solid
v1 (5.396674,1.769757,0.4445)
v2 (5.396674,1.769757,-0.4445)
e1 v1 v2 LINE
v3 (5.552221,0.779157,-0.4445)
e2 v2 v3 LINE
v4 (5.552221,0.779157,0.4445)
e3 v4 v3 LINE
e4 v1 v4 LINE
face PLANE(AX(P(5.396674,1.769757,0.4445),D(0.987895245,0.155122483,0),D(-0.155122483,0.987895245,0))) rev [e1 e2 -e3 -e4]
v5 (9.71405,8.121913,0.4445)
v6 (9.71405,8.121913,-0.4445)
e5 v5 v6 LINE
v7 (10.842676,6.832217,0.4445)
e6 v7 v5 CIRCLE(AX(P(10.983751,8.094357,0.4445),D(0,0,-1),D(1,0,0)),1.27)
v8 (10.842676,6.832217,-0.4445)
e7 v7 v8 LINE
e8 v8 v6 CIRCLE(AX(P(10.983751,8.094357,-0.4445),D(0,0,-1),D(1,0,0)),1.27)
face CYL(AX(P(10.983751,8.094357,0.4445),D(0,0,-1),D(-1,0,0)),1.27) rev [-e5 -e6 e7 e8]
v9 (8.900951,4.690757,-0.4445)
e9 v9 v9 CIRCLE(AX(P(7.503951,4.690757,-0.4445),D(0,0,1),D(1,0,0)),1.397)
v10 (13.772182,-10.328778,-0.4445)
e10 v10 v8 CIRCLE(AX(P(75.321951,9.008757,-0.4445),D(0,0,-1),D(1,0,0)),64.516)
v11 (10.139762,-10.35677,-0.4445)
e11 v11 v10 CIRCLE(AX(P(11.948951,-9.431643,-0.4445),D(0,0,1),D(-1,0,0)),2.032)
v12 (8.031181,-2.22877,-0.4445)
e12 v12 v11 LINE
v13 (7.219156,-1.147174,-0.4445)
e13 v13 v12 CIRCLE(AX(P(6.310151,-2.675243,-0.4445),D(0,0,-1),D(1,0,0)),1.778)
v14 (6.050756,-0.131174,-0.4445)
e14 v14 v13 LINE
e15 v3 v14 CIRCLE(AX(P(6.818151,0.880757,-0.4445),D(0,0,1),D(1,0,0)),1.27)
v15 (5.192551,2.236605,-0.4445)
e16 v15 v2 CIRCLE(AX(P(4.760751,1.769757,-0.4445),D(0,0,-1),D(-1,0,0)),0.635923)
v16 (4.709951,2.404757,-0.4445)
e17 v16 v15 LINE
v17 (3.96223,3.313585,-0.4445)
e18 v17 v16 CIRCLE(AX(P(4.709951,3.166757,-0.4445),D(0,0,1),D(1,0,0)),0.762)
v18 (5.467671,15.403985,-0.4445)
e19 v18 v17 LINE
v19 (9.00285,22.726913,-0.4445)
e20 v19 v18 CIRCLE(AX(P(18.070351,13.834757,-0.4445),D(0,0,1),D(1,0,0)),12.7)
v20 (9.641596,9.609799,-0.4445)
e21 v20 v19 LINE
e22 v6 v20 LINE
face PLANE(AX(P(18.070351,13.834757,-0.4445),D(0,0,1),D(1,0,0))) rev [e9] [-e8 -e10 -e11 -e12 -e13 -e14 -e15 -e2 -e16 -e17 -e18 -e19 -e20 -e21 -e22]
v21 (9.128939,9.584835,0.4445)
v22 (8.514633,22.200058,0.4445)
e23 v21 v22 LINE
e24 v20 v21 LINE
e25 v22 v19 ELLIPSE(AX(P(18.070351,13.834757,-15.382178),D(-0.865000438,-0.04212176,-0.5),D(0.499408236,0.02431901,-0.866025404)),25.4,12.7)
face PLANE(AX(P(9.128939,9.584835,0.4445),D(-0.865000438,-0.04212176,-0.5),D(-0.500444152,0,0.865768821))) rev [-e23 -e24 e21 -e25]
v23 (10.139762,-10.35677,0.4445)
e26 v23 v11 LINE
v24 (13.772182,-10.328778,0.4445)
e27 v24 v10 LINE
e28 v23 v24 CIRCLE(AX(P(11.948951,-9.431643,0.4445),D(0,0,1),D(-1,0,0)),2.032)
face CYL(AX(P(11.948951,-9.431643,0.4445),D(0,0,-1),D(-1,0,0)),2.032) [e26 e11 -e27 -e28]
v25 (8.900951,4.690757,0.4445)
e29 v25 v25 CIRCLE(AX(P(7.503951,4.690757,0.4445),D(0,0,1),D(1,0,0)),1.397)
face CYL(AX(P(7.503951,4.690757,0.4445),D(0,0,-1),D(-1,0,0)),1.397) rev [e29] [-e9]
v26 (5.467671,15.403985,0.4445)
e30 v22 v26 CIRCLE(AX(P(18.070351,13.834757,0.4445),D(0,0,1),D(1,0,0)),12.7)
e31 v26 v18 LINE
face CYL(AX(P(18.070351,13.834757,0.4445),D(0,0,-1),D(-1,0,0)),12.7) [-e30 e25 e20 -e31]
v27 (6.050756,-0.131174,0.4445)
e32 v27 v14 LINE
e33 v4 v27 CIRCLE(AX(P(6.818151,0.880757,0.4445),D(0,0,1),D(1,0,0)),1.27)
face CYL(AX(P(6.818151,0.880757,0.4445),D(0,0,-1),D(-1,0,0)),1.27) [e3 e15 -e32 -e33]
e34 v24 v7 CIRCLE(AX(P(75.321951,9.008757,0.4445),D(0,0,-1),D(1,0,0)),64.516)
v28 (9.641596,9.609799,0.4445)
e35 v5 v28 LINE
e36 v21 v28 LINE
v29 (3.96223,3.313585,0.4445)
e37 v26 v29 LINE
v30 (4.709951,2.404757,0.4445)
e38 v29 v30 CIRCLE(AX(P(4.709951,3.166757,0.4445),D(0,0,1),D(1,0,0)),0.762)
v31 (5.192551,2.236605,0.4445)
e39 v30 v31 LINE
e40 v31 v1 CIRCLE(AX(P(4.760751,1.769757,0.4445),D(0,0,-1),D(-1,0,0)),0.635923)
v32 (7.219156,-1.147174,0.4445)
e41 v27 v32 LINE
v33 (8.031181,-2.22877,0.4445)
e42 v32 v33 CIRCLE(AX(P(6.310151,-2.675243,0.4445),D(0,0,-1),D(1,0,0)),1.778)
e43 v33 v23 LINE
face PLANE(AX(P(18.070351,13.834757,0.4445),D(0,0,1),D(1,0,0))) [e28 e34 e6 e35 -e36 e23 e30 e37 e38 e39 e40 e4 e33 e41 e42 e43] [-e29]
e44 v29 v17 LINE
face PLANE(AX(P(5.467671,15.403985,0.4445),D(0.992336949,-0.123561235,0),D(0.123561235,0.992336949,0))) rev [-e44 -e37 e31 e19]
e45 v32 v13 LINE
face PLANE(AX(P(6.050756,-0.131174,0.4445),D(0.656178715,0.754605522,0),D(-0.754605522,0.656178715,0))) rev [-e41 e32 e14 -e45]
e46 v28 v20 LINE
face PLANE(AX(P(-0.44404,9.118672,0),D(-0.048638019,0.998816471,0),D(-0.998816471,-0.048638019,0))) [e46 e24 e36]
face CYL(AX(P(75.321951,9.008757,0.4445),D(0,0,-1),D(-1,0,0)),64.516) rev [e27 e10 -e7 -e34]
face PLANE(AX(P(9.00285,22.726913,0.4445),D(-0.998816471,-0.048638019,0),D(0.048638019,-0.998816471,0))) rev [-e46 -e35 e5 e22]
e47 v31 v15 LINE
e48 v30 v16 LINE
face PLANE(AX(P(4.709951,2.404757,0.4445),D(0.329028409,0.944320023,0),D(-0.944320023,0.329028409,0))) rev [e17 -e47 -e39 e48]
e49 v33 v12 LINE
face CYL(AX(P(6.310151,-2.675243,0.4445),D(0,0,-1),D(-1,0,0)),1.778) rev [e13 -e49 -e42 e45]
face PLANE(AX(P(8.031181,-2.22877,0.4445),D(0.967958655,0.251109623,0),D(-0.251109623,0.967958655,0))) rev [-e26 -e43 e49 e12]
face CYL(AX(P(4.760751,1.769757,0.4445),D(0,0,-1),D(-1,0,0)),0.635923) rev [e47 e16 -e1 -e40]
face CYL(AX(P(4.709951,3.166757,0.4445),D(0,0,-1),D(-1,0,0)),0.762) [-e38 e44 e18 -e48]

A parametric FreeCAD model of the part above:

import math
import FreeCAD as App
import Part
import Sketcher
from FreeCAD import Vector
Q = App.Units.Quantity


def add_polygon(sketch, points):
    """Adds a closed chain of lines whose ends are joined by coincident constraints."""
    first, n = sketch.GeometryCount, len(points)
    for a, b in zip(points, points[1:] + points[:1]):
        sketch.addGeometry(Part.LineSegment(App.Vector(*a, 0), App.Vector(*b, 0)), False)
    for i in range(n):
        sketch.addConstraint(Sketcher.Constraint("Coincident", first + i, 2, first + (i + 1) % n, 1))

doc = App.newDocument("Part")
body = doc.addObject("PartDesign::Body", "Body")

# Sketch on XY plane
sketch1 = body.newObject("Sketcher::SketchObject", "Sketch")
sketch1.AttachmentSupport = (doc.getObject("XY_Plane"), [""])
sketch1.MapMode = "FlatFace"
sketch1.addGeometry([
    Part.LineSegment(Vector(9.71405, 8.121913, 0), Vector(9.00285, 22.726913, 0)),  # 0
    Part.ArcOfCircle(Part.Circle(Vector(18.070351, 13.834757, 0), Vector(0, 0, 1), 12.7), math.radians(135.559379), math.radians(172.902323)),  # 1
    Part.LineSegment(Vector(5.467671, 15.403985, 0), Vector(3.96223, 3.313585, 0)),  # 2
    Part.ArcOfCircle(Part.Circle(Vector(4.709951, 3.166757, 0), Vector(0, 0, 1), 0.762), math.radians(168.890349), math.radians(270)),  # 3
    Part.LineSegment(Vector(4.709951, 2.404757, 0), Vector(5.192551, 2.236605, 0)),  # 4
    Part.ArcOfCircle(Part.Circle(Vector(4.760751, 1.769757, 0), Vector(0, 0, 1), 0.635923), math.radians(0), math.radians(47.233462)),  # 5
    Part.LineSegment(Vector(5.396674, 1.769757, 0), Vector(5.552221, 0.779157, 0)),  # 6
    Part.ArcOfCircle(Part.Circle(Vector(6.818151, 0.880757, 0), Vector(0, 0, 1), 1.27), math.radians(-175.411434), math.radians(-127.174738)),  # 7
    Part.LineSegment(Vector(6.050756, -0.131174, 0), Vector(7.219156, -1.147174, 0)),  # 8
    Part.ArcOfCircle(Part.Circle(Vector(6.310151, -2.675243, 0), Vector(0, 0, 1), 1.778), math.radians(14.543184), math.radians(59.252771)),  # 9
    Part.LineSegment(Vector(8.031181, -2.22877, 0), Vector(10.139762, -10.35677, 0)),  # 10
    Part.ArcOfCircle(Part.Circle(Vector(11.948951, -9.431643, 0), Vector(0, 0, 1), 2.032), math.radians(-152.917108), math.radians(-26.199841)),  # 11
    Part.ArcOfCircle(Part.Circle(Vector(75.321951, 9.008757, 0), Vector(0, 0, 1), 64.516), math.radians(-178.066678), math.radians(-162.558469)),  # 12
    Part.ArcOfCircle(Part.Circle(Vector(10.983751, 8.094357, 0), Vector(0, 0, 1), 1.27), math.radians(178.756753), math.radians(263.622261)),  # 13
    Part.Circle(Vector(7.503951, 4.690757, 0), Vector(0, 0, 1), 1.397),  # 14
], False)
sketch1.addConstraint([
    Sketcher.Constraint("Coincident", 0, 2, 1, 1),
    Sketcher.Constraint("Coincident", 1, 2, 2, 1),
    Sketcher.Constraint("Coincident", 2, 2, 3, 1),
    Sketcher.Constraint("Coincident", 3, 2, 4, 1),
    Sketcher.Constraint("Coincident", 4, 2, 5, 2),
    Sketcher.Constraint("Coincident", 5, 1, 6, 1),
    Sketcher.Constraint("Coincident", 6, 2, 7, 1),
    Sketcher.Constraint("Coincident", 7, 2, 8, 1),
    Sketcher.Constraint("Coincident", 8, 2, 9, 2),
    Sketcher.Constraint("Coincident", 9, 1, 10, 1),
    Sketcher.Constraint("Coincident", 10, 2, 11, 1),
    Sketcher.Constraint("Coincident", 11, 2, 12, 2),
    Sketcher.Constraint("Coincident", 12, 1, 13, 2),
    Sketcher.Constraint("Coincident", 13, 1, 0, 1),
    Sketcher.Constraint("Radius", 1, Q("0.5 in")),
    Sketcher.Constraint("Diameter", 14, Q("0.11 in")),
    Sketcher.Constraint("Radius", 3, Q("0.03 in")),
    Sketcher.Constraint("Radius", 7, Q("0.05 in")),
    Sketcher.Constraint("Radius", 9, Q("0.07 in")),
    Sketcher.Constraint("Radius", 11, Q("0.08 in")),
    Sketcher.Constraint("Radius", 12, Q("2.54 in")),
    Sketcher.Constraint("Radius", 13, Q("0.05 in")),
    Sketcher.Constraint("DistanceY", 3, 3, 1, 3, Q("0.42 in")),
    Sketcher.Constraint("DistanceY", 7, 3, 3, 3, Q("0.09 in")),
    Sketcher.Constraint("DistanceX", 9, 3, 7, 3, Q("0.02 in")),
    Sketcher.Constraint("DistanceY", 9, 3, 7, 3, Q("0.14 in")),
    Sketcher.Constraint("DistanceY", 12, 3, 1, 3, Q("0.19 in")),
    Sketcher.Constraint("DistanceX", 3, 3, 12, 3, Q("2.78 in")),
    Sketcher.Constraint("DistanceX", 3, 3, 14, 3, Q("0.11 in")),
    Sketcher.Constraint("DistanceY", 3, 3, 14, 3, Q("0.06 in")),
    Sketcher.Constraint("DistanceX", 3, 2, 14, 3, Q("0.11 in")),
    Sketcher.Constraint("DistanceY", 8, 2, 7, 2, Q("0.04 in")),
    Sketcher.Constraint("DistanceY", 10, 2, 9, 1, Q("0.32 in")),
    Sketcher.Constraint("DistanceX", 3, 3, 1, 3, Q("0.526 in")),
    Sketcher.Constraint("DistanceX", 3, 3, 5, 3, Q("0.002 in")),
    Sketcher.Constraint("DistanceY", 5, 3, 3, 3, Q("0.055 in")),
    Sketcher.Constraint("DistanceX", 5, 3, 7, 3, Q("0.081 in")),
    Sketcher.Constraint("DistanceX", 9, 3, 11, 3, Q("0.222 in")),
    Sketcher.Constraint("DistanceY", 11, 3, 9, 3, Q("0.266 in")),
    Sketcher.Constraint("DistanceX", 3, 3, 13, 3, Q("0.247 in")),
    Sketcher.Constraint("DistanceY", 3, 3, 13, 3, Q("0.194 in")),
    Sketcher.Constraint("DistanceX", 3, 2, 4, 2, Q("0.019 in")),
    Sketcher.Constraint("DistanceY", 5, 1, 3, 2, Q("0.025 in")),
    Sketcher.Constraint("DistanceY", 6, 2, 5, 1, Q("0.039 in")),
    Sketcher.Constraint("DistanceX", 7, 2, 8, 2, Q("0.046 in")),
    Sketcher.Constraint("Radius", 5, Q("0.635923 mm")),
    Sketcher.Constraint("DistanceX", 0, 2, 1, 3, Q("9.067501 mm")),
    Sketcher.Constraint("DistanceX", 9, 1, 11, 2, Q("5.741001 mm")),
    Sketcher.Constraint("DistanceX", 13, 1, 13, 3, Q("1.269701 mm")),
    Sketcher.Constraint("DistanceX", -1, 1, 1, 3, Q("18.070351 mm")),
    Sketcher.Constraint("DistanceX", -1, 1, 1, 2, Q("5.467671 mm")),
    Sketcher.Constraint("DistanceX", -1, 1, 2, 2, Q("3.96223 mm")),
    Sketcher.Constraint("DistanceY", 9, 1, -1, 1, Q("2.22877 mm")),
])
pad1 = body.newObject("PartDesign::Pad", "Pad")
pad1.Profile = sketch1
pad1.Length = Q("0.035 in")
pad1.Midplane = True

# Sketch on an angled plane
sketch2 = body.newObject("Sketcher::SketchObject", "Sketch001")
sketch2.Placement = App.Placement(Vector(-1.247053, 25.609132, 0), App.Rotation(Vector(0.998816471, 0.048638019, 0), Vector(0, 0, -1), Vector(-0.048638019, 0.998816471, 0), "ZXY"))
add_polygon(sketch2, [(10.1, -0.4), (10.1, 0.4), (9.6, -0.4)])  # lines 0-2
sketch2.addConstraint([
    Sketcher.Constraint("Vertical", 0),
    Sketcher.Constraint("Horizontal", 2),
    Sketcher.Constraint("Angle", 1, Q("-120 deg")),
    Sketcher.Constraint("DistanceY", 0, 1, 0, 2, Q("0.035 in")),
    Sketcher.Constraint("DistanceY", -1, 1, 0, 2, Q("0.0175 in")),
    Sketcher.Constraint("DistanceX", -1, 1, 0, 2, Q("10.097587 mm")),
])
pocket1 = body.newObject("PartDesign::Pocket", "Pocket")
pocket1.Profile = sketch2
pocket1.Length = Q("0.65 in")

doc.recompute()
